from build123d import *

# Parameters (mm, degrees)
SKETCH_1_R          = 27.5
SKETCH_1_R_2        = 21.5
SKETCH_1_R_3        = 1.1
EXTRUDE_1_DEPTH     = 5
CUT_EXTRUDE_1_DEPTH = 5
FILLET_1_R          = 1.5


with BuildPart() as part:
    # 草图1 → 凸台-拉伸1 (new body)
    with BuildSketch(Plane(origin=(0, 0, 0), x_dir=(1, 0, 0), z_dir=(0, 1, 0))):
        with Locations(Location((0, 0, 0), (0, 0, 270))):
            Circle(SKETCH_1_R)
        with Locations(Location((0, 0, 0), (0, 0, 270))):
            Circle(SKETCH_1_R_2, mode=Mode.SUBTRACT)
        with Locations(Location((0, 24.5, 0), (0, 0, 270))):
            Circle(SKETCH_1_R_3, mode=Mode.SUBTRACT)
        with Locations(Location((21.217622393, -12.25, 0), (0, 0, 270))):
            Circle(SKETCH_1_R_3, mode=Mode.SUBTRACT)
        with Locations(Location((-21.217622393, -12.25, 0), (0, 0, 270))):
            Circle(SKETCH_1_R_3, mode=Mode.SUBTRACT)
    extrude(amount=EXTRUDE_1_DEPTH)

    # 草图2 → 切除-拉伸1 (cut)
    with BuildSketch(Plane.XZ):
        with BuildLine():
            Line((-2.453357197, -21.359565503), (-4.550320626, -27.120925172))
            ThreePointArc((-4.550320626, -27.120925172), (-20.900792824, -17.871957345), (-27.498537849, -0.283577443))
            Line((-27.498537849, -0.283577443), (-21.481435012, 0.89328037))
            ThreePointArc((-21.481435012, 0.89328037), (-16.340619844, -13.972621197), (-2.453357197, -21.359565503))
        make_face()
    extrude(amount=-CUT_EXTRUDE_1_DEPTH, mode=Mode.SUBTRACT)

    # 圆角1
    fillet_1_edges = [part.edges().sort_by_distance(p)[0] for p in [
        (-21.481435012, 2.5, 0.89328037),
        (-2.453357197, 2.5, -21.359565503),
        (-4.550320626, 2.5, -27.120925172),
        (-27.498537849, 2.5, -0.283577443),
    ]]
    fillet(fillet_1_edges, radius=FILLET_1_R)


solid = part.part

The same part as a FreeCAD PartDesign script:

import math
import FreeCAD as App
import Part
import Sketcher

V = App.Vector
Q = App.Units.Quantity


def edges_at(feature, points):
    """Names of the edges that pass closest to the given points."""
    edges = feature.Shape.Edges
    near = lambda p: min(range(len(edges)), key=lambda i: edges[i].distToShape(Part.Vertex(*p))[0])
    return sorted({f"Edge{near(p) + 1}" for p in points})

doc = App.newDocument("Part")
params = doc.addObject("Spreadsheet::Sheet", "Params")
for row, (alias, value) in enumerate([
    ("sketch1_diameter", "55 mm"),
    ("sketch1_diameter2", "43 mm"),
    ("sketch1_diameter3", "2.2 mm"),
    ("pad1_length", "5 mm"),
    ("sketch2_radius", "21.5 mm"),
    ("sketch2_radius2", "27.5 mm"),
    ("pocket1_length", "5 mm"),
    ("fillet_radius", "1.5 mm"),
], start=1):
    params.set(f"A{row}", alias)
    params.set(f"B{row}", "=" + value)
    params.setAlias(f"B{row}", alias)

body = doc.addObject("PartDesign::Body", "Body")

# Sketch on XZ plane
sketch1 = body.newObject("Sketcher::SketchObject", "Sketch")
sketch1.AttachmentSupport = (doc.getObject("XZ_Plane"), [""])
sketch1.MapMode = "FlatFace"
sketch1.addGeometry(Part.Circle(V(0, 0, 0), V(0, 0, 1), 27.5), False)
sketch1.addGeometry(Part.Circle(V(0, -24.5, 0), V(0, 0, 1), 1.1), False)
sketch1.addGeometry(Part.Circle(V(-21.2, 12.2, 0), V(0, 0, 1), 1.1), False)
sketch1.addGeometry(Part.Circle(V(0, 0, 0), V(0, 0, 1), 21.5), False)
sketch1.addGeometry(Part.Circle(V(21.2, 12.2, 0), V(0, 0, 1), 1.1), False)
sketch1.addConstraint(Sketcher.Constraint("Coincident", 0, 3, -1, 1))
sketch1.addConstraint(Sketcher.Constraint("Coincident", 3, 3, -1, 1))
sketch1.addConstraint(Sketcher.Constraint("Equal", 1, 2))
sketch1.addConstraint(Sketcher.Constraint("Equal", 2, 4))
sketch1.addConstraint(Sketcher.Constraint("Symmetric", 2, 3, 4, 3, -2))
sketch1.addConstraint(Sketcher.Constraint("PointOnObject", 1, 3, -2))
sketch1.addConstraint(Sketcher.Constraint("Diameter", 0, 55.0))
sketch1.addConstraint(Sketcher.Constraint("Diameter", 3, 43.0))
sketch1.addConstraint(Sketcher.Constraint("Diameter", 1, 2.2))
sketch1.addConstraint(Sketcher.Constraint("DistanceY", 1, 3, -1, 1, 24.5))
sketch1.addConstraint(Sketcher.Constraint("DistanceY", -1, 1, 2, 3, 12.25))
sketch1.addConstraint(Sketcher.Constraint("DistanceX", 2, 3, -1, 1, 21.217622))
sketch1.setExpression("Constraints[6]", "Params.sketch1_diameter")
sketch1.setExpression("Constraints[7]", "Params.sketch1_diameter2")
sketch1.setExpression("Constraints[8]", "Params.sketch1_diameter3")
pad1 = body.newObject("PartDesign::Pad", "Pad")
pad1.Profile = sketch1
pad1.setExpression("Length", "Params.pad1_length")
pad1.Reversed = True

# Sketch on XZ plane
sketch2 = body.newObject("Sketcher::SketchObject", "Sketch001")
sketch2.AttachmentSupport = (doc.getObject("XZ_Plane"), [""])
sketch2.MapMode = "FlatFace"
sketch2.addGeometry(Part.LineSegment(V(-5, -27, 0), V(-2, -21, 0)), False)
sketch2.addGeometry(Part.ArcOfCircle(Part.Circle(V(0, 0, 0), V(0, 0, 1), 22), math.radians(178), math.radians(263)), False)
sketch2.addGeometry(Part.LineSegment(V(-21, 1, 0), V(-27, 0, 0)), False)
sketch2.addGeometry(Part.ArcOfCircle(Part.Circle(V(0, 0, 0), V(0, 0, 1), 27), math.radians(-179), math.radians(-100)), False)
sketch2.addConstraint(Sketcher.Constraint("Coincident", 0, 2, 1, 2))
sketch2.addConstraint(Sketcher.Constraint("Coincident", 1, 1, 2, 1))
sketch2.addConstraint(Sketcher.Constraint("Coincident", 2, 2, 3, 1))
sketch2.addConstraint(Sketcher.Constraint("Coincident", 3, 2, 0, 1))
sketch2.addConstraint(Sketcher.Constraint("Coincident", 1, 3, -1, 1))
sketch2.addConstraint(Sketcher.Constraint("Coincident", 3, 3, -1, 1))
sketch2.addConstraint(Sketcher.Constraint("Equal", 0, 2))
sketch2.addConstraint(Sketcher.Constraint("Radius", 1, 21.5))
sketch2.addConstraint(Sketcher.Constraint("Radius", 3, 27.5))
sketch2.addConstraint(Sketcher.Constraint("Angle", 0, Q("70 deg")))
sketch2.addConstraint(Sketcher.Constraint("Distance", 0, 6.131111))
sketch2.addConstraint(Sketcher.Constraint("DistanceY", -1, 1, 1, 1, 0.89328))
sketch2.setExpression("Constraints[7]", "Params.sketch2_radius")
sketch2.setExpression("Constraints[8]", "Params.sketch2_radius2")
pocket1 = body.newObject("PartDesign::Pocket", "Pocket")
pocket1.Profile = sketch2
pocket1.setExpression("Length", "Params.pocket1_length")
doc.recompute()

fillet = body.newObject("PartDesign::Fillet", "Fillet")
fillet.Base = (pocket1, edges_at(pocket1, [
    (-21.481, 2.5, 0.893),
    (-2.453, 2.5, -21.36),
    (-4.55, 2.5, -27.121),
    (-27.499, 2.5, -0.284),
]))
fillet.setExpression("Radius", "Params.fillet_radius")

doc.recompute()
